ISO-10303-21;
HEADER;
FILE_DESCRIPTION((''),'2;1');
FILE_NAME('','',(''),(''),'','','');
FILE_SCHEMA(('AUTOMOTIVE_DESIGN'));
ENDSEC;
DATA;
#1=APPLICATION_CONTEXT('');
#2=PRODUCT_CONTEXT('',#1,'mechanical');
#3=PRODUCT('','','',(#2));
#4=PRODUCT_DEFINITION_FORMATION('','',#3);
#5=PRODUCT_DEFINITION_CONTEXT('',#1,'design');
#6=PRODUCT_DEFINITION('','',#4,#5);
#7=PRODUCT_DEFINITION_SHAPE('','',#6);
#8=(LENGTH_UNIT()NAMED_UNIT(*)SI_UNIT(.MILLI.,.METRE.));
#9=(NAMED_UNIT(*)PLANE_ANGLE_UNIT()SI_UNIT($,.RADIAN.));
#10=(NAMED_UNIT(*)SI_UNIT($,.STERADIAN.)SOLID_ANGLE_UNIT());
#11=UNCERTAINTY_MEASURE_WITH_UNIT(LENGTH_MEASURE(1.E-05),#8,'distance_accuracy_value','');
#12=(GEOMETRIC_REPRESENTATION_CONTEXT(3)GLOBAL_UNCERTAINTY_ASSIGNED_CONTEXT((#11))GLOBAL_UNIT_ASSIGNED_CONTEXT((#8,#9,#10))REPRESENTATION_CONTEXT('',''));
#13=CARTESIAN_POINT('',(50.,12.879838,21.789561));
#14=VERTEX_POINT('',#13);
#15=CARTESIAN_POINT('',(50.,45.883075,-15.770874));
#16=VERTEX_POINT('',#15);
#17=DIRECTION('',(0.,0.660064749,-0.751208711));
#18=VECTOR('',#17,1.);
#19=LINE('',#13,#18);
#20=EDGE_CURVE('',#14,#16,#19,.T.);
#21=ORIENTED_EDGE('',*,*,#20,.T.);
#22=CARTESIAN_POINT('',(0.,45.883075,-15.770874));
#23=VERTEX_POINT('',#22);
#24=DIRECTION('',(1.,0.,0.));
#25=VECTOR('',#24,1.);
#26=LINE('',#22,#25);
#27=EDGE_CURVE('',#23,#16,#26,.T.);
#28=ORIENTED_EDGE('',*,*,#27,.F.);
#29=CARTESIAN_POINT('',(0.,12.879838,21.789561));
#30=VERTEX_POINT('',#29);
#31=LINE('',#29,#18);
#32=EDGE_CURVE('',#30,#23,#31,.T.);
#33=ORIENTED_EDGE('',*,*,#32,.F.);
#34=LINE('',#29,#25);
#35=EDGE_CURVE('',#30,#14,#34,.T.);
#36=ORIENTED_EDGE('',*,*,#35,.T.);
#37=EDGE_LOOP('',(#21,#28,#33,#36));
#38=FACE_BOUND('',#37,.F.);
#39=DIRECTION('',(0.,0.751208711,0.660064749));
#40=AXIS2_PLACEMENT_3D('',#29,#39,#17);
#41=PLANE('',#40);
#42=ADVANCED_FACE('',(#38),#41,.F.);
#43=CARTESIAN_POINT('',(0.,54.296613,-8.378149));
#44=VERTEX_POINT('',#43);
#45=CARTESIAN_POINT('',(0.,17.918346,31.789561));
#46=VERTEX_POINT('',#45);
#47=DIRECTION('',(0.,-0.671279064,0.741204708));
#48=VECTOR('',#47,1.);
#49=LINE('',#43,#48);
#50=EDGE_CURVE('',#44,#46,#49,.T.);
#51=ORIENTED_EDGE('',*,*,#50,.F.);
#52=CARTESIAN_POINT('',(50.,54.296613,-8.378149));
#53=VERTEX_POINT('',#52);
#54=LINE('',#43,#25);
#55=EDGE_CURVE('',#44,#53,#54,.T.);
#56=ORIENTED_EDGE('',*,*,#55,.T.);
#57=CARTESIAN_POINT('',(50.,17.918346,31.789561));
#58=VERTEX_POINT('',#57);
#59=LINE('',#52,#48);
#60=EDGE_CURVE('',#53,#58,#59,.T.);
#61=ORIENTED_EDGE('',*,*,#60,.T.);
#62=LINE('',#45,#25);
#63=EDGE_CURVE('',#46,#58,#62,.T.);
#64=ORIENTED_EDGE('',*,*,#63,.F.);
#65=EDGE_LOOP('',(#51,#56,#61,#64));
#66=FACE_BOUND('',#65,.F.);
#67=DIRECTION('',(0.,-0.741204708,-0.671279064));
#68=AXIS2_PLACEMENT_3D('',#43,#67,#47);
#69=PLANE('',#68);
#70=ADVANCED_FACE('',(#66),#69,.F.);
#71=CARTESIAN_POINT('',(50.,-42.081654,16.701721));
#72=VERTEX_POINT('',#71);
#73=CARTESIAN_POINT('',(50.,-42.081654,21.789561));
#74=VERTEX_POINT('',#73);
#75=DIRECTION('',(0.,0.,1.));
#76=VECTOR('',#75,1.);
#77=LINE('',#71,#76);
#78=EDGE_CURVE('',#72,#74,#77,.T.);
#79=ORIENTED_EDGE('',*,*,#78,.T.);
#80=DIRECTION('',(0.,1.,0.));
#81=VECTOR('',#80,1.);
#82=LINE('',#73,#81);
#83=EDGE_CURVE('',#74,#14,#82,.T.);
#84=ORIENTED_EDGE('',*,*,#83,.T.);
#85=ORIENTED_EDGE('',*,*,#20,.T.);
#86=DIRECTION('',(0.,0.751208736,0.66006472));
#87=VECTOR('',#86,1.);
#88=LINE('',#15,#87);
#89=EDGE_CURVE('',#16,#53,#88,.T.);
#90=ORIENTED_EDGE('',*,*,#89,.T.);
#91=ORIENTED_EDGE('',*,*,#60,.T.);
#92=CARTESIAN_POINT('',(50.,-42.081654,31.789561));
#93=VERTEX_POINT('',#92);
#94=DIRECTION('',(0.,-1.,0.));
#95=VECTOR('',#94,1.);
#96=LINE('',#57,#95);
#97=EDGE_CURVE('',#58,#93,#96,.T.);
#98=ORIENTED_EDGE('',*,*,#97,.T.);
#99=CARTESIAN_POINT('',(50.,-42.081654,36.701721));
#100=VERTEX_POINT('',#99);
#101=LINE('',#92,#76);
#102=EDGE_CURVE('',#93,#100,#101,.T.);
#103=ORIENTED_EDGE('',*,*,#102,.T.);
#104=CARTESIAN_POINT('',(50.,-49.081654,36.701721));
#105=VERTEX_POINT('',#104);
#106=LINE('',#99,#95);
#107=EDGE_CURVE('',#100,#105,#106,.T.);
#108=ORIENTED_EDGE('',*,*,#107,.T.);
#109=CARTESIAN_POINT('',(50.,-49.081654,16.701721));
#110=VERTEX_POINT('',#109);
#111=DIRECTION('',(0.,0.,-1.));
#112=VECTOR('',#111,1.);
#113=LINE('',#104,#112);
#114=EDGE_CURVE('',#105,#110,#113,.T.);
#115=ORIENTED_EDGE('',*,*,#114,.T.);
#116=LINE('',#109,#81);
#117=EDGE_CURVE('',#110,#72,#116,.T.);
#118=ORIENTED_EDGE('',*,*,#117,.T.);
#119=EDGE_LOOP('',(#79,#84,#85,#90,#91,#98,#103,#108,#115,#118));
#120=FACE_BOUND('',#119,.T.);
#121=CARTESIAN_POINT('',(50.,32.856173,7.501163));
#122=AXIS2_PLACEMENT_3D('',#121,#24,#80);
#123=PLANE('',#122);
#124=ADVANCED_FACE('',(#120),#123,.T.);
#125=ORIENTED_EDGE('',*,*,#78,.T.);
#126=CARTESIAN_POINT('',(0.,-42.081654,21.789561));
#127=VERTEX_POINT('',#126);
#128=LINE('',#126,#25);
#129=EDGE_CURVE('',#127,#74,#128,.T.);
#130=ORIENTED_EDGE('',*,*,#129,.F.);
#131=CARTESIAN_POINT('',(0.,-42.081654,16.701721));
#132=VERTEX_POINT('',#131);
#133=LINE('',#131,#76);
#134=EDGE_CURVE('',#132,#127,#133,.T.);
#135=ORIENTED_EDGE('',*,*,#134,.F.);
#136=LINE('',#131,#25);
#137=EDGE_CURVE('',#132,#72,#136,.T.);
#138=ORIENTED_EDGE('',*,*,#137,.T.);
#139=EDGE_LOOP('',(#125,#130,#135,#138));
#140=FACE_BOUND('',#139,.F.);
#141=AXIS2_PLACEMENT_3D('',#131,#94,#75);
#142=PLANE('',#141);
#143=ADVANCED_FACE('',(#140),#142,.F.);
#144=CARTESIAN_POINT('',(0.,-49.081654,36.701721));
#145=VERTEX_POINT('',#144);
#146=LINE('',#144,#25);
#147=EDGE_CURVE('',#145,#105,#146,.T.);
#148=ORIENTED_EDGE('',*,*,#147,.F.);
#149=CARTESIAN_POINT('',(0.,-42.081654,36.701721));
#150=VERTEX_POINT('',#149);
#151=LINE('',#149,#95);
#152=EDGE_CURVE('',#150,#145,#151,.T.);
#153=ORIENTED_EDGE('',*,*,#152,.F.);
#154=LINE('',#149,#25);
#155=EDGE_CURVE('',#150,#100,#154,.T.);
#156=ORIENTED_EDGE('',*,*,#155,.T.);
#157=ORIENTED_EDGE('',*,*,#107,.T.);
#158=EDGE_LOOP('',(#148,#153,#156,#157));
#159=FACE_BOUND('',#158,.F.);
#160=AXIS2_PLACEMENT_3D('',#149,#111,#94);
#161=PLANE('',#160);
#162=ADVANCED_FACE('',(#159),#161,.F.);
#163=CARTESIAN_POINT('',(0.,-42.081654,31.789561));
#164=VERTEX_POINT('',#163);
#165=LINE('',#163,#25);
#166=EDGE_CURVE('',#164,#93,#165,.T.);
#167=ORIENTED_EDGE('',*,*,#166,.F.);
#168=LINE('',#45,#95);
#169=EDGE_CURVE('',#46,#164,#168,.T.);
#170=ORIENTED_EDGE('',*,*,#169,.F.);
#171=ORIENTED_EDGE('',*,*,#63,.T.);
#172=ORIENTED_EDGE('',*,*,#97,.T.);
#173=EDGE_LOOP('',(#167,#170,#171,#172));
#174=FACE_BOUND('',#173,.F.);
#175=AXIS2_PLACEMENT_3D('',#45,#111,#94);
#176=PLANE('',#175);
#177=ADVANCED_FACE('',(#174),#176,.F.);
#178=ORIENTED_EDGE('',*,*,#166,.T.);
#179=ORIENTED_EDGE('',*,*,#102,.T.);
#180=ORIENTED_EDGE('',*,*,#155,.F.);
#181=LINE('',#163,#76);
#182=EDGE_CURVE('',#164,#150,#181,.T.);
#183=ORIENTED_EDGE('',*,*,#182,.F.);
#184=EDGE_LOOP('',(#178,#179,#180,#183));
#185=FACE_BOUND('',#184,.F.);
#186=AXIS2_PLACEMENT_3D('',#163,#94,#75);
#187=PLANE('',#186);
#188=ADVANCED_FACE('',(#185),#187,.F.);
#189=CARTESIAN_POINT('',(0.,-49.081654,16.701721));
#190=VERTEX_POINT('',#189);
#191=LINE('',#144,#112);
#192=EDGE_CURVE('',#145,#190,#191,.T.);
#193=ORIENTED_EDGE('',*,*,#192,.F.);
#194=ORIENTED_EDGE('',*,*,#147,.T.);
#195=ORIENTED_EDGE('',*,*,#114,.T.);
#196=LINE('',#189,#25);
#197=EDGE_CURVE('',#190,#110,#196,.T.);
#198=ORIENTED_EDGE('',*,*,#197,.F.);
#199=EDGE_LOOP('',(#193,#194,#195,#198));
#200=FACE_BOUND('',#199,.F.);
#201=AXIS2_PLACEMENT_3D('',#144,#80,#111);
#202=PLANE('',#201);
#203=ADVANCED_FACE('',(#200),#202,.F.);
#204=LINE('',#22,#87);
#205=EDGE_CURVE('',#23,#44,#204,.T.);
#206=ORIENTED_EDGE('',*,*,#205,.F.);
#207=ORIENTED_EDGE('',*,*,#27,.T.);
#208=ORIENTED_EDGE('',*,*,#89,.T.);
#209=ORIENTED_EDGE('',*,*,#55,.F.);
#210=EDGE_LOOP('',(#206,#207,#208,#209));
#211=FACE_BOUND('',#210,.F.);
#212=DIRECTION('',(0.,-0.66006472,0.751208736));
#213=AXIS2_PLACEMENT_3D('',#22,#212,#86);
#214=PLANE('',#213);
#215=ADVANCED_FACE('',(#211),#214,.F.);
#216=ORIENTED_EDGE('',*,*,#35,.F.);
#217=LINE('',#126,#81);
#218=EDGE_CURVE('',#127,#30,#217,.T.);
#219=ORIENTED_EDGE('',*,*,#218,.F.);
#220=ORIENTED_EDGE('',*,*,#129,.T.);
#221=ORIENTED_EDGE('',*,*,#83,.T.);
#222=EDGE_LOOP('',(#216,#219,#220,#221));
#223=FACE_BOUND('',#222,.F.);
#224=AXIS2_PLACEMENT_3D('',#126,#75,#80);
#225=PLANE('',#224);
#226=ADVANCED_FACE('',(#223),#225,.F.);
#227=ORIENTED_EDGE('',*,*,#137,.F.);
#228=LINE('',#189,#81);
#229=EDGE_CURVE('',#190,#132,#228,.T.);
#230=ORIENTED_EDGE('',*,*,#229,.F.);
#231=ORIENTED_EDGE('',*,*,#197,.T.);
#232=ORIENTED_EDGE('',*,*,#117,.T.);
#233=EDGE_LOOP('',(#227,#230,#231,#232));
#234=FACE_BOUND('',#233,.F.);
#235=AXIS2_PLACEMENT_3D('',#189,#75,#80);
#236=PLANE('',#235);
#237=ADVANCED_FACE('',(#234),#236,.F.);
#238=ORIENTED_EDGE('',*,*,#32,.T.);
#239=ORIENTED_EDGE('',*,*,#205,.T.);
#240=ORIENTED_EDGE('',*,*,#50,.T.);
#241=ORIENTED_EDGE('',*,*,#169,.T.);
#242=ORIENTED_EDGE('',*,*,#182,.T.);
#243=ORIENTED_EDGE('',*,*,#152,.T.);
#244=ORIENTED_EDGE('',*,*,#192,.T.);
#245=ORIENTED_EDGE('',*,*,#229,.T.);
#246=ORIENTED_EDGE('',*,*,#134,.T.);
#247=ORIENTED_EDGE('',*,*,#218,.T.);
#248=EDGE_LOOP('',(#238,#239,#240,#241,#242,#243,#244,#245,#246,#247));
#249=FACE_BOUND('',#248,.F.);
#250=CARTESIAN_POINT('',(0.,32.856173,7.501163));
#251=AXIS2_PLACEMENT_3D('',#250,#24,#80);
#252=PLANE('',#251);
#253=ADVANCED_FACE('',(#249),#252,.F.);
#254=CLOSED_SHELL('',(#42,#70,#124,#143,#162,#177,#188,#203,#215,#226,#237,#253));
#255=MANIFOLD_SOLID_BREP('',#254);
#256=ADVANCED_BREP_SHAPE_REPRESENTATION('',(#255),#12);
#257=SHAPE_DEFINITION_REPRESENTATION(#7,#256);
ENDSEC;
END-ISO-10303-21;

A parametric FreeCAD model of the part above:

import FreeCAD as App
import Part
import Sketcher

V = App.Vector
Q = App.Units.Quantity

doc = App.newDocument("Part")
body = doc.addObject("PartDesign::Body", "Body")

sketch1 = body.newObject("Sketcher::SketchObject", "Sketch")
sketch1.AttachmentSupport = (doc.getObject("YZ_Plane"), [""])
sketch1.MapMode = "FlatFace"
sketch1.addGeometry([
    Part.LineSegment(V(12.9, 21.8, 0), V(45.9, -15.8, 0)),
    Part.LineSegment(V(45.9, -15.8, 0), V(54.3, -8.4, 0)),
    Part.LineSegment(V(54.3, -8.4, 0), V(17.9, 31.8, 0)),
    Part.LineSegment(V(17.9, 31.8, 0), V(-42.1, 31.8, 0)),
    Part.LineSegment(V(-42.1, 31.8, 0), V(-42.1, 36.7, 0)),
    Part.LineSegment(V(-42.1, 36.7, 0), V(-49.1, 36.7, 0)),
    Part.LineSegment(V(-49.1, 36.7, 0), V(-49.1, 16.7, 0)),
    Part.LineSegment(V(-49.1, 16.7, 0), V(-42.1, 16.7, 0)),
    Part.LineSegment(V(-42.1, 16.7, 0), V(-42.1, 21.8, 0)),
    Part.LineSegment(V(-42.1, 21.8, 0), V(12.9, 21.8, 0)),
], False)
sketch1.addConstraint([
    Sketcher.Constraint("Coincident", 0, 2, 1, 1),
    Sketcher.Constraint("Coincident", 1, 2, 2, 1),
    Sketcher.Constraint("Coincident", 2, 2, 3, 1),
    Sketcher.Constraint("Coincident", 3, 2, 4, 1),
    Sketcher.Constraint("Coincident", 4, 2, 5, 1),
    Sketcher.Constraint("Coincident", 5, 2, 6, 1),
    Sketcher.Constraint("Coincident", 6, 2, 7, 1),
    Sketcher.Constraint("Coincident", 7, 2, 8, 1),
    Sketcher.Constraint("Coincident", 8, 2, 9, 1),
    Sketcher.Constraint("Coincident", 9, 2, 0, 1),
    Sketcher.Constraint("Horizontal", 3),
    Sketcher.Constraint("Vertical", 4),
    Sketcher.Constraint("Horizontal", 5),
    Sketcher.Constraint("Vertical", 6),
    Sketcher.Constraint("Horizontal", 7),
    Sketcher.Constraint("Vertical", 8),
    Sketcher.Constraint("Horizontal", 9),
    Sketcher.Constraint("Perpendicular", 0, 1),
    Sketcher.Constraint("Vertical", 4, 2, 7, 2),
    Sketcher.Constraint("DistanceX", 3, 2, 3, 1, Q("60 mm")),
    Sketcher.Constraint("DistanceX", 5, 2, 5, 1, Q("7 mm")),
    Sketcher.Constraint("DistanceY", 6, 2, 6, 1, Q("20 mm")),
    Sketcher.Constraint("Distance", 0, Q("49.999999 mm")),
    Sketcher.Constraint("DistanceY", 8, 2, 3, 2, Q("10 mm")),
    Sketcher.Constraint("Distance", 1, Q("11.2 mm")),
    Sketcher.Constraint("DistanceY", 4, 1, 4, 2, Q("4.91216 mm")),
    Sketcher.Constraint("DistanceX", 9, 1, 9, 2, Q("54.961492 mm")),
    Sketcher.Constraint("DistanceY", 1, 2, -1, 1, Q("8.378149 mm")),
    Sketcher.Constraint("DistanceY", -1, 1, 2, 2, Q("31.789561 mm")),
    Sketcher.Constraint("DistanceX", -1, 1, 0, 2, Q("45.883075 mm")),
])
pad1 = body.newObject("PartDesign::Pad", "Pad")
pad1.Profile = sketch1
pad1.Length = 50

doc.recompute()
